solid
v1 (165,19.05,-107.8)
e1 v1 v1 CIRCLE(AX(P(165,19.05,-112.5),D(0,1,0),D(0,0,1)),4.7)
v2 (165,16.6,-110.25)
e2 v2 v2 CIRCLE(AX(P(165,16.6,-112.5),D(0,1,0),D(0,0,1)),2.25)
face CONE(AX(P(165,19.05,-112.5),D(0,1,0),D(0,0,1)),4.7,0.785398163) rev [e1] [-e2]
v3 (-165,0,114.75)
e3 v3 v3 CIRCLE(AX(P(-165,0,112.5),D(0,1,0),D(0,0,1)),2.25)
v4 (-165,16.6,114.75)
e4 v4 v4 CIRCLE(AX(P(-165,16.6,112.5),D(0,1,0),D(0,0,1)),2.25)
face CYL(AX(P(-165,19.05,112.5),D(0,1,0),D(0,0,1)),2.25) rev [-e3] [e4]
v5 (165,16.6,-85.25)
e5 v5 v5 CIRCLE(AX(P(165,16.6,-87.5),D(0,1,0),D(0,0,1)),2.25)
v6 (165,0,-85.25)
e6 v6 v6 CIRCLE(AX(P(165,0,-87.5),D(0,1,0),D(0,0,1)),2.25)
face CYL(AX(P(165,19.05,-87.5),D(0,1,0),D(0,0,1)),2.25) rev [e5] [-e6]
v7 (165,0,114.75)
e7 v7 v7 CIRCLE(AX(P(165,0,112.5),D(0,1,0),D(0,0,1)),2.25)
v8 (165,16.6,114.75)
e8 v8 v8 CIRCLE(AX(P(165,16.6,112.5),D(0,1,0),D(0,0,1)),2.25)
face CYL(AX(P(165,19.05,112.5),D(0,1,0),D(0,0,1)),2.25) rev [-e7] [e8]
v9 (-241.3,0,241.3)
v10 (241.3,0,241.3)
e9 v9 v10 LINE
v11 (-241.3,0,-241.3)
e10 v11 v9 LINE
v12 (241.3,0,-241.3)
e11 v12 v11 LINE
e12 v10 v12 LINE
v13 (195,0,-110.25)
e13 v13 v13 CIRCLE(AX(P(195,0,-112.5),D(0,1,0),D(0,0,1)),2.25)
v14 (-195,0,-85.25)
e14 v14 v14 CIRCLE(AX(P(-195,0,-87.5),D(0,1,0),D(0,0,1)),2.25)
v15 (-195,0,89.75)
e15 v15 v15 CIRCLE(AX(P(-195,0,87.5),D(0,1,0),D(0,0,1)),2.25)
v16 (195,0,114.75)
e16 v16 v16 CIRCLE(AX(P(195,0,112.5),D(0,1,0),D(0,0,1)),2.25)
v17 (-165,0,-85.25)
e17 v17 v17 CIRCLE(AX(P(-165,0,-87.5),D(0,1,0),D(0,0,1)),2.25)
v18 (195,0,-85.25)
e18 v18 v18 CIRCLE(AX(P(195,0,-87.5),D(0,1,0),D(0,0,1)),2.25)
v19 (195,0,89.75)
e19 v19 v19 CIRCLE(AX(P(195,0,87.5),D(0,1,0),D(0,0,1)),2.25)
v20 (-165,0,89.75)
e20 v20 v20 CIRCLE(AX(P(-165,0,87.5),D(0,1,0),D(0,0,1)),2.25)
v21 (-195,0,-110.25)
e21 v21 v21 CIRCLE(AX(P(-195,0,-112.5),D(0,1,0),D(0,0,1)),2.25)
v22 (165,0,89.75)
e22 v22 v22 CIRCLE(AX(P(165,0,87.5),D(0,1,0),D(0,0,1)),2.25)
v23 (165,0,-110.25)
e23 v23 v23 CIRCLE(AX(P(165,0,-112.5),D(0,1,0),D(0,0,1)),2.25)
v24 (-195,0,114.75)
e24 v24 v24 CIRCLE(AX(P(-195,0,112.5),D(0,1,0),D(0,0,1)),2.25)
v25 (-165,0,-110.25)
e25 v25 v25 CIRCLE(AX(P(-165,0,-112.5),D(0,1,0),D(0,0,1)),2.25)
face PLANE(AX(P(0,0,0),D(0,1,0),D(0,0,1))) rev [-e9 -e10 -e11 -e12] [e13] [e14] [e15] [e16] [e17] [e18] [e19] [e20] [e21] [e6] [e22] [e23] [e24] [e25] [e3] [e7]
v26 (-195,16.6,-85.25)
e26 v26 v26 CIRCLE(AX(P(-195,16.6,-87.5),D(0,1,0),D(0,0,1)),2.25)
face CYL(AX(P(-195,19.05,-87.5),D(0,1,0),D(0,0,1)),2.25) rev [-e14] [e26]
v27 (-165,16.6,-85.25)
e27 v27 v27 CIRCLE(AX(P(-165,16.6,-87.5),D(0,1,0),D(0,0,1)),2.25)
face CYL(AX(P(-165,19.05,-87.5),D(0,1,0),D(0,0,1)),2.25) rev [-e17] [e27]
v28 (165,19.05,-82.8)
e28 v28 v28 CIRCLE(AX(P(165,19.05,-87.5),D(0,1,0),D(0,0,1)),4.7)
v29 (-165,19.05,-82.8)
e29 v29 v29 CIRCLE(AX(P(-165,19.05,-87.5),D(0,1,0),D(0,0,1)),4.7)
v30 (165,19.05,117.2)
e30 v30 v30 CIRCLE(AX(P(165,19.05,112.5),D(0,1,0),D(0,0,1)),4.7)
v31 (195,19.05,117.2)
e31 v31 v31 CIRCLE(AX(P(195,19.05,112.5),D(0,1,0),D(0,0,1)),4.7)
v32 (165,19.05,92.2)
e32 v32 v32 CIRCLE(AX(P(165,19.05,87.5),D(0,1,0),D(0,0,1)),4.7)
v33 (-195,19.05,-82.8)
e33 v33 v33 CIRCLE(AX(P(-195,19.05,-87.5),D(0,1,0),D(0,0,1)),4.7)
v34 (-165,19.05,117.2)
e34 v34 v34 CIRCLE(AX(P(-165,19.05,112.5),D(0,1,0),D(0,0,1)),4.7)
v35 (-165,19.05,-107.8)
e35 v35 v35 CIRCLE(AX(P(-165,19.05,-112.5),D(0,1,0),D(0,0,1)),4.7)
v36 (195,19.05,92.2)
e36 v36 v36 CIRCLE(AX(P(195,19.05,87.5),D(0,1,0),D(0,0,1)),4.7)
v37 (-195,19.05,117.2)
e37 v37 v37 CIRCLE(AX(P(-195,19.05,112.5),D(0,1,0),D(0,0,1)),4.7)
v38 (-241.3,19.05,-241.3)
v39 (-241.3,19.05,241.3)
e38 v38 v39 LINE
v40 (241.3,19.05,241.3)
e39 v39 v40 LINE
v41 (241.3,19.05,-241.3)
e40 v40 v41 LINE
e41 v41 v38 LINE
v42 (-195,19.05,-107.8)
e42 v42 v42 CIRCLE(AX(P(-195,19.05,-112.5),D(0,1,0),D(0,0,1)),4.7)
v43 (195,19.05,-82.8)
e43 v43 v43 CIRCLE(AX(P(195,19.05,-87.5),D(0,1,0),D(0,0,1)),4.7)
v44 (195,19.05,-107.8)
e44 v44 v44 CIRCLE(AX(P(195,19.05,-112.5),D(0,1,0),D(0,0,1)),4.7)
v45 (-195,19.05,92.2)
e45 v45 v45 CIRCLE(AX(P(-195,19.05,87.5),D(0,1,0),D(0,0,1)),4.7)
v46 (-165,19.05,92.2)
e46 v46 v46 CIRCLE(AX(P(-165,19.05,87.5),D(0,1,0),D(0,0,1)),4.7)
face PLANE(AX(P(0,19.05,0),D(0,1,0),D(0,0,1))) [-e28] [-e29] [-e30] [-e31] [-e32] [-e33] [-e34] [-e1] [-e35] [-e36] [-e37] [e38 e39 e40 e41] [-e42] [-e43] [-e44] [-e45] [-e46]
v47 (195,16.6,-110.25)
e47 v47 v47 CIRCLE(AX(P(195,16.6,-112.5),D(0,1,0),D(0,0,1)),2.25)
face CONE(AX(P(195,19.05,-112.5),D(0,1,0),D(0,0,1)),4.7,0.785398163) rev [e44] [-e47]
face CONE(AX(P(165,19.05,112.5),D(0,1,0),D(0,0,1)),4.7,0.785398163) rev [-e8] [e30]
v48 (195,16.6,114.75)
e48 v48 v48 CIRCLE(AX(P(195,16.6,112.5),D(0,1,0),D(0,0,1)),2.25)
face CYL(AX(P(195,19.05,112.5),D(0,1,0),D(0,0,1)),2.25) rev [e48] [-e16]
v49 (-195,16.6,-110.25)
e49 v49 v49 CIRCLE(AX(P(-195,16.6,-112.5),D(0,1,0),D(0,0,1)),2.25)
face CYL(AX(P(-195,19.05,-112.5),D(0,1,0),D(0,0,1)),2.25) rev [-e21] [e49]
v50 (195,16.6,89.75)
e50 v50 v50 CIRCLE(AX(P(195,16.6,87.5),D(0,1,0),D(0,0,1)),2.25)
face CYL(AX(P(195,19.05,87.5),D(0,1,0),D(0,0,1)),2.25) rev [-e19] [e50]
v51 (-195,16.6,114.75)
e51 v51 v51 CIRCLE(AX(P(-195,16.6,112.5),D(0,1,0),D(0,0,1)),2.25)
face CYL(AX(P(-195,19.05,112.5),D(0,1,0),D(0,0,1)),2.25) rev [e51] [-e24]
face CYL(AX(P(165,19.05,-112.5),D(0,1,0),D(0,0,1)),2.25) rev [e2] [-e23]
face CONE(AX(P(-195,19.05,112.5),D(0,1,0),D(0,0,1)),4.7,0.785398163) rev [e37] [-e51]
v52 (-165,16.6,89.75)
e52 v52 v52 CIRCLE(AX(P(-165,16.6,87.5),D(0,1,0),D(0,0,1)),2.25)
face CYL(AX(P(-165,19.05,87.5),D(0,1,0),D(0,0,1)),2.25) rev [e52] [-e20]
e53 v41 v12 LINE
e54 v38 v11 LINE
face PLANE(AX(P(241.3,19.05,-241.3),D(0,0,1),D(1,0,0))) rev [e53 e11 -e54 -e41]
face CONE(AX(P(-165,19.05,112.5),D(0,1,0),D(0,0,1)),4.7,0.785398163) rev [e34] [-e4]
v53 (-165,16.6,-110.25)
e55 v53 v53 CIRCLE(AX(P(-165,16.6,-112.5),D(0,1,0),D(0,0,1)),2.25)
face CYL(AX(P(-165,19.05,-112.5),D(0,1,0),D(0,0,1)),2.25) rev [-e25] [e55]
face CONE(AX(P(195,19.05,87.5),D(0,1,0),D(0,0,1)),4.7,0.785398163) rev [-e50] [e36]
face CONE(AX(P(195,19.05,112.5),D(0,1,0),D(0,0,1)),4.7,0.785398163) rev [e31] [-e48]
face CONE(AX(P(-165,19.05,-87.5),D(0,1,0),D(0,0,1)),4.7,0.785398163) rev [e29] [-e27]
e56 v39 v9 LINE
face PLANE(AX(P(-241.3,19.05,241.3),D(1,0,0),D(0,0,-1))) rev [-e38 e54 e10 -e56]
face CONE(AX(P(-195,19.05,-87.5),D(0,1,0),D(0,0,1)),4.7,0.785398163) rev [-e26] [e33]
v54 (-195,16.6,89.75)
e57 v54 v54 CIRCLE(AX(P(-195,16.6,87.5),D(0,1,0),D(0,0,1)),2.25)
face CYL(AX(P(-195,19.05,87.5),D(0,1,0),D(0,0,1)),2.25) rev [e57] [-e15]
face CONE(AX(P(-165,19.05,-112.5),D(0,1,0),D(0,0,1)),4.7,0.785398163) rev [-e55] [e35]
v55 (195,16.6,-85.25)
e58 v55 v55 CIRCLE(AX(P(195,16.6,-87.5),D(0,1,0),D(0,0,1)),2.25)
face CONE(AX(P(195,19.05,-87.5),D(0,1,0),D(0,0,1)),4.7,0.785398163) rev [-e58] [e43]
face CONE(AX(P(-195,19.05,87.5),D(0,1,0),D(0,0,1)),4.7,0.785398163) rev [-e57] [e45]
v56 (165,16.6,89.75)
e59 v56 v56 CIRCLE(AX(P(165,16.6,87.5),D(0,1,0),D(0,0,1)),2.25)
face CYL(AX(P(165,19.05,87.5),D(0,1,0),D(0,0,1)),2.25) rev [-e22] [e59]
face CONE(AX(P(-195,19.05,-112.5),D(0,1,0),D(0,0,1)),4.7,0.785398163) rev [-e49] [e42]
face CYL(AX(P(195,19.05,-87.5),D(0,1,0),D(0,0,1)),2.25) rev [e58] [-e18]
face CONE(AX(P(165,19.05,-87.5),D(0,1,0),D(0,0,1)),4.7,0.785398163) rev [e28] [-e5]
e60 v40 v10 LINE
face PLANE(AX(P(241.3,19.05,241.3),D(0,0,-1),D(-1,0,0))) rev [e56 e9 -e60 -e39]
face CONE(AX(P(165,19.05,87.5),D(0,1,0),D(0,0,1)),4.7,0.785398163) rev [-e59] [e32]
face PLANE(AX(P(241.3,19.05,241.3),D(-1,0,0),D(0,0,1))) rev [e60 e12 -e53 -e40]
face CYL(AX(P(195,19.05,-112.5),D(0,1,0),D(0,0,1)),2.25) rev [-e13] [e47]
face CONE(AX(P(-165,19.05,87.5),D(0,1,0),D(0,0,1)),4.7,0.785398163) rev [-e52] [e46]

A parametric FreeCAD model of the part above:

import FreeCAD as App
import Part
import Sketcher

V = App.Vector
Q = App.Units.Quantity


def add_polygon(sketch, points):
    """Adds a closed chain of lines whose ends are joined by coincident constraints."""
    first, n = sketch.GeometryCount, len(points)
    for a, b in zip(points, points[1:] + points[:1]):
        sketch.addGeometry(Part.LineSegment(App.Vector(*a, 0), App.Vector(*b, 0)), False)
    for i in range(n):
        sketch.addConstraint(Sketcher.Constraint("Coincident", first + i, 2, first + (i + 1) % n, 1))

doc = App.newDocument("Part")
params = doc.addObject("Spreadsheet::Sheet", "Params")
for row, (alias, value) in enumerate([
    ("sketch1_width", "19 in"),
    ("pad1_length", "0.75 in"),
    ("hole_diameter", "4.5 mm"),
    ("hole_csink_diameter", "9.4 mm"),
], start=1):
    params.set(f"A{row}", alias)
    params.set(f"B{row}", "=" + value)
    params.setAlias(f"B{row}", alias)

body = doc.addObject("PartDesign::Body", "Body")

# Sketch on XZ plane
sketch1 = body.newObject("Sketcher::SketchObject", "Sketch")
sketch1.AttachmentSupport = (doc.getObject("XZ_Plane"), [""])
sketch1.MapMode = "FlatFace"
add_polygon(sketch1, [(-241.3, -241.3), (-241.3, 241.3), (241.3, 241.3), (241.3, -241.3)])  # lines 0-3
sketch1.addConstraint([
    Sketcher.Constraint("Vertical", 0),
    Sketcher.Constraint("Horizontal", 1),
    Sketcher.Constraint("Vertical", 2),
    Sketcher.Constraint("Horizontal", 3),
    Sketcher.Constraint("Symmetric", 0, 2, 2, 2, -1, 1),
    Sketcher.Constraint("Equal", 3, 0),
    Sketcher.Constraint("DistanceX", 1, 1, 1, 2, Q("19 in")),
])
sketch1.setExpression("Constraints[10]", "Params.sketch1_width")
pad1 = body.newObject("PartDesign::Pad", "Pad")
pad1.Profile = sketch1
pad1.setExpression("Length", "Params.pad1_length")
pad1.Reversed = True

# Sketch on XZ plane
sketch2 = body.newObject("Sketcher::SketchObject", "Sketch001")
sketch2.AttachmentSupport = (doc.getObject("XZ_Plane"), [""])
sketch2.MapMode = "FlatFace"
sketch2.AttachmentOffset = App.Placement(V(0, 0, -0.75 * 25.4), App.Rotation())
sketch2.addGeometry([
    Part.Circle(V(-195, 87.5, 0), V(0, 0, 1), 2.25),  # 0
    Part.Circle(V(-165, 87.5, 0), V(0, 0, 1), 2.25),  # 1
    Part.Circle(V(-165, 112.5, 0), V(0, 0, 1), 2.25),  # 2
    Part.Circle(V(-195, 112.5, 0), V(0, 0, 1), 2.25),  # 3
    Part.Circle(V(195, 112.5, 0), V(0, 0, 1), 2.25),  # 4
    Part.Circle(V(165, 112.5, 0), V(0, 0, 1), 2.25),  # 5
    Part.Circle(V(165, 87.5, 0), V(0, 0, 1), 2.25),  # 6
    Part.Circle(V(195, 87.5, 0), V(0, 0, 1), 2.25),  # 7
    Part.Circle(V(195, -87.5, 0), V(0, 0, 1), 2.25),  # 8
    Part.Circle(V(195, -112.5, 0), V(0, 0, 1), 2.25),  # 9
    Part.Circle(V(165, -112.5, 0), V(0, 0, 1), 2.25),  # 10
    Part.Circle(V(165, -87.5, 0), V(0, 0, 1), 2.25),  # 11
    Part.Circle(V(-195, -87.5, 0), V(0, 0, 1), 2.25),  # 12
    Part.Circle(V(-165, -87.5, 0), V(0, 0, 1), 2.25),  # 13
    Part.Circle(V(-165, -112.5, 0), V(0, 0, 1), 2.25),  # 14
    Part.Circle(V(-195, -112.5, 0), V(0, 0, 1), 2.25),  # 15
], False)
sketch2.addConstraint([
    Sketcher.Constraint("Equal", 0, 1),
    Sketcher.Constraint("Equal", 1, 2),
    Sketcher.Constraint("Equal", 2, 3),
    Sketcher.Constraint("Equal", 3, 4),
    Sketcher.Constraint("Equal", 4, 5),
    Sketcher.Constraint("Equal", 5, 6),
    Sketcher.Constraint("Equal", 6, 7),
    Sketcher.Constraint("Equal", 7, 8),
    Sketcher.Constraint("Equal", 8, 9),
    Sketcher.Constraint("Equal", 9, 10),
    Sketcher.Constraint("Equal", 10, 11),
    Sketcher.Constraint("Equal", 11, 12),
    Sketcher.Constraint("Equal", 12, 13),
    Sketcher.Constraint("Equal", 13, 14),
    Sketcher.Constraint("Equal", 14, 15),
    Sketcher.Constraint("Symmetric", 0, 3, 8, 3, -1, 1),
    Sketcher.Constraint("Symmetric", 3, 3, 9, 3, -1, 1),
    Sketcher.Constraint("Symmetric", 2, 3, 10, 3, -1, 1),
    Sketcher.Constraint("Symmetric", 1, 3, 11, 3, -1, 1),
    Sketcher.Constraint("Symmetric", 7, 3, 12, 3, -1, 1),
    Sketcher.Constraint("Symmetric", 6, 3, 13, 3, -1, 1),
    Sketcher.Constraint("Symmetric", 5, 3, 14, 3, -1, 1),
    Sketcher.Constraint("Symmetric", 4, 3, 15, 3, -1, 1),
    Sketcher.Constraint("Symmetric", 3, 3, 4, 3, -2),
    Sketcher.Constraint("Symmetric", 2, 3, 5, 3, -2),
    Sketcher.Constraint("Symmetric", 1, 3, 6, 3, -2),
    Sketcher.Constraint("Symmetric", 0, 3, 7, 3, -2),
    Sketcher.Constraint("Horizontal", 0, 3, 1, 3),
    Sketcher.Constraint("Horizontal", 2, 3, 3, 3),
    Sketcher.Constraint("Vertical", 1, 3, 2, 3),
    Sketcher.Constraint("Vertical", 0, 3, 3, 3),
    Sketcher.Constraint("Diameter", 0, Q("4.5 mm")),
    Sketcher.Constraint("DistanceX", 0, 3, -1, 1, Q("195 mm")),
    Sketcher.Constraint("DistanceY", -1, 1, 0, 3, Q("87.5 mm")),
    Sketcher.Constraint("DistanceX", 1, 3, -1, 1, Q("165 mm")),
    Sketcher.Constraint("DistanceY", -1, 1, 2, 3, Q("112.5 mm")),
])
doc.recompute()
hole = body.newObject("PartDesign::Hole", "Hole")
hole.Profile = sketch2
hole.ThreadType = "None"
hole.setExpression("Diameter", "Params.hole_diameter")
hole.DepthType = "ThroughAll"
hole.HoleCutType = "Countersink"
hole.setExpression("HoleCutDiameter", "Params.hole_csink_diameter")
hole.HoleCutCountersinkAngle = 90
hole.Reversed = True

doc.recompute()
